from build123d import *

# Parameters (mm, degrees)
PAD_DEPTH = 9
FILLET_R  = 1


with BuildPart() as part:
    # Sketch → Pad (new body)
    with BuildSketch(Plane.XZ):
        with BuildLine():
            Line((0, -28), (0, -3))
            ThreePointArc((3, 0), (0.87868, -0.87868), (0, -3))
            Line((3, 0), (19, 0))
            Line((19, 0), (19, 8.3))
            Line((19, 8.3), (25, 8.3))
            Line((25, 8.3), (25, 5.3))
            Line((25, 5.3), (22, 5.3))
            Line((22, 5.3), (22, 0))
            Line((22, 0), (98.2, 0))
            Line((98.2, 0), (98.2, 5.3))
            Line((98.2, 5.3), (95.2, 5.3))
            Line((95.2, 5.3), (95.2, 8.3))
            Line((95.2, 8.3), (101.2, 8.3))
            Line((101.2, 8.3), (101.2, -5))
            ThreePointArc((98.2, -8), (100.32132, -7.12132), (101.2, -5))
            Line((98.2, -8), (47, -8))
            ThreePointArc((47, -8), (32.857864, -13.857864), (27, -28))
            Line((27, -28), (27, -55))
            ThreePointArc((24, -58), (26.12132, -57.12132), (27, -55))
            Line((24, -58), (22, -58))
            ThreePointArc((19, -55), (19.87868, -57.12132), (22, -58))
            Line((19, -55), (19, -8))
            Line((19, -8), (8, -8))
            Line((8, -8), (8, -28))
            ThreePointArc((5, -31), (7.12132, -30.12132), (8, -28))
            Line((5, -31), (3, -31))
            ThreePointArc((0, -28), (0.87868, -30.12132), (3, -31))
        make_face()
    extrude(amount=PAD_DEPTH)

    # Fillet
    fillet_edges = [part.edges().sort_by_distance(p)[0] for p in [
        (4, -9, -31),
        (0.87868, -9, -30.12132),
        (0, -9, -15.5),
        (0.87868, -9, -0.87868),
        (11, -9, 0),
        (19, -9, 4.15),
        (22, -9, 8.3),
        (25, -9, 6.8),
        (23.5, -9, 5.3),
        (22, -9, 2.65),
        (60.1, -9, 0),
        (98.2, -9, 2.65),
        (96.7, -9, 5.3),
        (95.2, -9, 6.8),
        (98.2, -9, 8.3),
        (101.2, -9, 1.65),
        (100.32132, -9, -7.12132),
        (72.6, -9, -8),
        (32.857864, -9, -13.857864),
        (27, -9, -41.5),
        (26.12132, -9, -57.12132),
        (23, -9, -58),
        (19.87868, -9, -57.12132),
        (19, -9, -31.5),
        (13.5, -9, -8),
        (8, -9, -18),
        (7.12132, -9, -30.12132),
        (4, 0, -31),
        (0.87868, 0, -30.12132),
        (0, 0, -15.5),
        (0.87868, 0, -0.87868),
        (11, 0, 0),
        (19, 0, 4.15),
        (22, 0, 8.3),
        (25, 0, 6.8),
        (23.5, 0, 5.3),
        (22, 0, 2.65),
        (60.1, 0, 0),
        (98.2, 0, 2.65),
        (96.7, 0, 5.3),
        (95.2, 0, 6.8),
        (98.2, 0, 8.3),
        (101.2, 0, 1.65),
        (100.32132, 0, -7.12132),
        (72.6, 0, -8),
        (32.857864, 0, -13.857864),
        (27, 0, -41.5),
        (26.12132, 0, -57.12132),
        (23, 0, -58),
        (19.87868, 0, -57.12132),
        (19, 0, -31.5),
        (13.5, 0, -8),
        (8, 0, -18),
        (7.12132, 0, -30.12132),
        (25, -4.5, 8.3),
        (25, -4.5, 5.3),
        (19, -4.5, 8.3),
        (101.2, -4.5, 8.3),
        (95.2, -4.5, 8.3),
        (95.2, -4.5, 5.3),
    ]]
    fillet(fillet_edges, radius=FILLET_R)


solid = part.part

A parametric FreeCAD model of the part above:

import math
import FreeCAD as App
import Part
import Sketcher


def edges_at(feature, points):
    """Names of the edges that pass closest to the given points."""
    edges = feature.Shape.Edges
    near = lambda p: min(range(len(edges)), key=lambda i: edges[i].distToShape(Part.Vertex(*p))[0])
    return sorted({f"Edge{near(p) + 1}" for p in points})

doc = App.newDocument("Part")
body = doc.addObject("PartDesign::Body", "Body")

# Sketch on XZ plane
sketch1 = body.newObject("Sketcher::SketchObject", "Sketch")
sketch1.AttachmentSupport = (doc.getObject("XZ_Plane"), [""])
sketch1.MapMode = "FlatFace"
sketch1.addGeometry(Part.LineSegment(App.Vector(0, -3, 0), App.Vector(0, -28, 0)), False)
sketch1.addGeometry(Part.ArcOfCircle(Part.Circle(App.Vector(3, -28, 0), App.Vector(0, 0, 1), 3), math.radians(-180), math.radians(-90)), False)
sketch1.addGeometry(Part.LineSegment(App.Vector(3, -31, 0), App.Vector(5, -31, 0)), False)
sketch1.addGeometry(Part.ArcOfCircle(Part.Circle(App.Vector(5, -28, 0), App.Vector(0, 0, 1), 3), math.radians(-90), math.radians(0)), False)
sketch1.addGeometry(Part.LineSegment(App.Vector(8, -28, 0), App.Vector(8, -8, 0)), False)
sketch1.addGeometry(Part.LineSegment(App.Vector(8, -8, 0), App.Vector(19, -8, 0)), False)
sketch1.addGeometry(Part.LineSegment(App.Vector(19, -8, 0), App.Vector(19, -55, 0)), False)
sketch1.addGeometry(Part.ArcOfCircle(Part.Circle(App.Vector(22, -55, 0), App.Vector(0, 0, 1), 3), math.radians(-180), math.radians(-90)), False)
sketch1.addGeometry(Part.LineSegment(App.Vector(22, -58, 0), App.Vector(24, -58, 0)), False)
sketch1.addGeometry(Part.ArcOfCircle(Part.Circle(App.Vector(24, -55, 0), App.Vector(0, 0, 1), 3), math.radians(-90), math.radians(0)), False)
sketch1.addGeometry(Part.LineSegment(App.Vector(27, -55, 0), App.Vector(27, -28, 0)), False)
sketch1.addGeometry(Part.ArcOfCircle(Part.Circle(App.Vector(47, -28, 0), App.Vector(0, 0, 1), 20), math.radians(90), math.radians(180)), False)
sketch1.addGeometry(Part.LineSegment(App.Vector(47, -8, 0), App.Vector(98.2, -8, 0)), False)
sketch1.addGeometry(Part.ArcOfCircle(Part.Circle(App.Vector(98.2, -5, 0), App.Vector(0, 0, 1), 3), math.radians(-90), math.radians(0)), False)
sketch1.addGeometry(Part.LineSegment(App.Vector(101.2, -5, 0), App.Vector(101.2, 8.3, 0)), False)
sketch1.addGeometry(Part.LineSegment(App.Vector(101.2, 8.3, 0), App.Vector(95.2, 8.3, 0)), False)
sketch1.addGeometry(Part.LineSegment(App.Vector(95.2, 8.3, 0), App.Vector(95.2, 5.3, 0)), False)
sketch1.addGeometry(Part.LineSegment(App.Vector(95.2, 5.3, 0), App.Vector(98.2, 5.3, 0)), False)
sketch1.addGeometry(Part.LineSegment(App.Vector(98.2, 5.3, 0), App.Vector(98.2, 0, 0)), False)
sketch1.addGeometry(Part.LineSegment(App.Vector(98.2, 0, 0), App.Vector(22, 0, 0)), False)
sketch1.addGeometry(Part.LineSegment(App.Vector(22, 0, 0), App.Vector(22, 5.3, 0)), False)
sketch1.addGeometry(Part.LineSegment(App.Vector(22, 5.3, 0), App.Vector(25, 5.3, 0)), False)
sketch1.addGeometry(Part.LineSegment(App.Vector(25, 5.3, 0), App.Vector(25, 8.3, 0)), False)
sketch1.addGeometry(Part.LineSegment(App.Vector(25, 8.3, 0), App.Vector(19, 8.3, 0)), False)
sketch1.addGeometry(Part.LineSegment(App.Vector(19, 8.3, 0), App.Vector(19, 0, 0)), False)
sketch1.addGeometry(Part.LineSegment(App.Vector(19, 0, 0), App.Vector(3, 0, 0)), False)
sketch1.addGeometry(Part.ArcOfCircle(Part.Circle(App.Vector(3, -3, 0), App.Vector(0, 0, 1), 3), math.radians(90), math.radians(180)), False)
sketch1.addConstraint(Sketcher.Constraint("Tangent", 0, 2, 1, 1))
sketch1.addConstraint(Sketcher.Constraint("Tangent", 1, 2, 2, 1))
sketch1.addConstraint(Sketcher.Constraint("Tangent", 2, 2, 3, 1))
sketch1.addConstraint(Sketcher.Constraint("Tangent", 3, 2, 4, 1))
sketch1.addConstraint(Sketcher.Constraint("Coincident", 4, 2, 5, 1))
sketch1.addConstraint(Sketcher.Constraint("Coincident", 5, 2, 6, 1))
sketch1.addConstraint(Sketcher.Constraint("Tangent", 6, 2, 7, 1))
sketch1.addConstraint(Sketcher.Constraint("Tangent", 7, 2, 8, 1))
sketch1.addConstraint(Sketcher.Constraint("Tangent", 8, 2, 9, 1))
sketch1.addConstraint(Sketcher.Constraint("Tangent", 9, 2, 10, 1))
sketch1.addConstraint(Sketcher.Constraint("Tangent", 10, 2, 11, 2))
sketch1.addConstraint(Sketcher.Constraint("Tangent", 11, 1, 12, 1))
sketch1.addConstraint(Sketcher.Constraint("Tangent", 12, 2, 13, 1))
sketch1.addConstraint(Sketcher.Constraint("Tangent", 13, 2, 14, 1))
sketch1.addConstraint(Sketcher.Constraint("Coincident", 14, 2, 15, 1))
sketch1.addConstraint(Sketcher.Constraint("Coincident", 15, 2, 16, 1))
sketch1.addConstraint(Sketcher.Constraint("Coincident", 16, 2, 17, 1))
sketch1.addConstraint(Sketcher.Constraint("Coincident", 17, 2, 18, 1))
sketch1.addConstraint(Sketcher.Constraint("Coincident", 18, 2, 19, 1))
sketch1.addConstraint(Sketcher.Constraint("Coincident", 19, 2, 20, 1))
sketch1.addConstraint(Sketcher.Constraint("Coincident", 20, 2, 21, 1))
sketch1.addConstraint(Sketcher.Constraint("Coincident", 21, 2, 22, 1))
sketch1.addConstraint(Sketcher.Constraint("Coincident", 22, 2, 23, 1))
sketch1.addConstraint(Sketcher.Constraint("Coincident", 23, 2, 24, 1))
sketch1.addConstraint(Sketcher.Constraint("Coincident", 24, 2, 25, 1))
sketch1.addConstraint(Sketcher.Constraint("Tangent", 25, 2, 26, 1))
sketch1.addConstraint(Sketcher.Constraint("Tangent", 26, 2, 0, 1))
sketch1.addConstraint(Sketcher.Constraint("Vertical", 0))
sketch1.addConstraint(Sketcher.Constraint("Horizontal", 2))
sketch1.addConstraint(Sketcher.Constraint("Vertical", 4))
sketch1.addConstraint(Sketcher.Constraint("Horizontal", 5))
sketch1.addConstraint(Sketcher.Constraint("Vertical", 6))
sketch1.addConstraint(Sketcher.Constraint("Horizontal", 8))
sketch1.addConstraint(Sketcher.Constraint("Vertical", 10))
sketch1.addConstraint(Sketcher.Constraint("Horizontal", 12))
sketch1.addConstraint(Sketcher.Constraint("Vertical", 14))
sketch1.addConstraint(Sketcher.Constraint("Horizontal", 15))
sketch1.addConstraint(Sketcher.Constraint("Vertical", 16))
sketch1.addConstraint(Sketcher.Constraint("Horizontal", 17))
sketch1.addConstraint(Sketcher.Constraint("Vertical", 18))
sketch1.addConstraint(Sketcher.Constraint("Horizontal", 19))
sketch1.addConstraint(Sketcher.Constraint("Vertical", 20))
sketch1.addConstraint(Sketcher.Constraint("Horizontal", 21))
sketch1.addConstraint(Sketcher.Constraint("Vertical", 22))
sketch1.addConstraint(Sketcher.Constraint("Horizontal", 23))
sketch1.addConstraint(Sketcher.Constraint("Vertical", 24))
sketch1.addConstraint(Sketcher.Constraint("Horizontal", 25))
sketch1.addConstraint(Sketcher.Constraint("Equal", 1, 3))
sketch1.addConstraint(Sketcher.Constraint("Equal", 3, 7))
sketch1.addConstraint(Sketcher.Constraint("Equal", 7, 9))
sketch1.addConstraint(Sketcher.Constraint("Equal", 9, 13))
sketch1.addConstraint(Sketcher.Constraint("Equal", 13, 26))
sketch1.addConstraint(Sketcher.Constraint("PointOnObject", 0, 2, -2))
sketch1.addConstraint(Sketcher.Constraint("PointOnObject", 18, 2, -1))
sketch1.addConstraint(Sketcher.Constraint("PointOnObject", 24, 2, -1))
sketch1.addConstraint(Sketcher.Constraint("Horizontal", 3, 3, 11, 3))
sketch1.addConstraint(Sketcher.Constraint("Horizontal", 5, 2, 11, 1))
sketch1.addConstraint(Sketcher.Constraint("Horizontal", 17, 2, 20, 2))
sketch1.addConstraint(Sketcher.Constraint("Horizontal", 15, 2, 22, 2))
sketch1.addConstraint(Sketcher.Constraint("Vertical", 12, 2, 17, 2))
sketch1.addConstraint(Sketcher.Constraint("Vertical", 7, 2, 19, 2))
sketch1.addConstraint(Sketcher.Constraint("Vertical", 6, 2, 23, 2))
sketch1.addConstraint(Sketcher.Constraint("Equal", 2, 8))
sketch1.addConstraint(Sketcher.Constraint("Equal", 17, 21))
sketch1.addConstraint(Sketcher.Constraint("Equal", 21, 16))
sketch1.addConstraint(Sketcher.Constraint("Radius", 1, 3.000001))
sketch1.addConstraint(Sketcher.Constraint("Radius", 11, 19.999999))
sketch1.addConstraint(Sketcher.Constraint("DistanceX", 2, 1, 2, 2, 2.0))
sketch1.addConstraint(Sketcher.Constraint("DistanceX", 5, 1, 5, 2, 11.0))
sketch1.addConstraint(Sketcher.Constraint("DistanceX", 15, 2, 15, 1, 6.0))
sketch1.addConstraint(Sketcher.Constraint("DistanceY", 0, 2, 0, 1, 25.0))
sketch1.addConstraint(Sketcher.Constraint("DistanceY", 6, 2, 6, 1, 47.0))
sketch1.addConstraint(Sketcher.Constraint("DistanceX", 12, 1, 12, 2, 51.2))
sketch1.addConstraint(Sketcher.Constraint("DistanceY", 14, 1, 14, 2, 13.3))
pad1 = body.newObject("PartDesign::Pad", "Pad")
pad1.Profile = sketch1
pad1.Length = 9
doc.recompute()

fillet = body.newObject("PartDesign::Fillet", "Fillet")
fillet.Base = (pad1, edges_at(pad1, [
    (4, -9, -31),
    (0.879, -9, -30.121),
    (0, -9, -15.5),
    (0.879, -9, -0.879),
    (11, -9, 0),
    (19, -9, 4.15),
    (22, -9, 8.3),
    (25, -9, 6.8),
    (23.5, -9, 5.3),
    (22, -9, 2.65),
    (60.1, -9, 0),
    (98.2, -9, 2.65),
    (96.7, -9, 5.3),
    (95.2, -9, 6.8),
    (98.2, -9, 8.3),
    (101.2, -9, 1.65),
    (100.321, -9, -7.121),
    (72.6, -9, -8),
    (32.858, -9, -13.858),
    (27, -9, -41.5),
    (26.121, -9, -57.121),
    (23, -9, -58),
    (19.879, -9, -57.121),
    (19, -9, -31.5),
    (13.5, -9, -8),
    (8, -9, -18),
    (7.121, -9, -30.121),
    (4, 0, -31),
    (0.879, 0, -30.121),
    (0, 0, -15.5),
    (0.879, 0, -0.879),
    (11, 0, 0),
    (19, 0, 4.15),
    (22, 0, 8.3),
    (25, 0, 6.8),
    (23.5, 0, 5.3),
    (22, 0, 2.65),
    (60.1, 0, 0),
    (98.2, 0, 2.65),
    (96.7, 0, 5.3),
    (95.2, 0, 6.8),
    (98.2, 0, 8.3),
    (101.2, 0, 1.65),
    (100.321, 0, -7.121),
    (72.6, 0, -8),
    (32.858, 0, -13.858),
    (27, 0, -41.5),
    (26.121, 0, -57.121),
    (23, 0, -58),
    (19.879, 0, -57.121),
    (19, 0, -31.5),
    (13.5, 0, -8),
    (8, 0, -18),
    (7.121, 0, -30.121),
    (25, -4.5, 8.3),
    (25, -4.5, 5.3),
    (19, -4.5, 8.3),
    (101.2, -4.5, 8.3),
    (95.2, -4.5, 8.3),
    (95.2, -4.5, 5.3),
]))
fillet.Radius = 1

doc.recompute()
